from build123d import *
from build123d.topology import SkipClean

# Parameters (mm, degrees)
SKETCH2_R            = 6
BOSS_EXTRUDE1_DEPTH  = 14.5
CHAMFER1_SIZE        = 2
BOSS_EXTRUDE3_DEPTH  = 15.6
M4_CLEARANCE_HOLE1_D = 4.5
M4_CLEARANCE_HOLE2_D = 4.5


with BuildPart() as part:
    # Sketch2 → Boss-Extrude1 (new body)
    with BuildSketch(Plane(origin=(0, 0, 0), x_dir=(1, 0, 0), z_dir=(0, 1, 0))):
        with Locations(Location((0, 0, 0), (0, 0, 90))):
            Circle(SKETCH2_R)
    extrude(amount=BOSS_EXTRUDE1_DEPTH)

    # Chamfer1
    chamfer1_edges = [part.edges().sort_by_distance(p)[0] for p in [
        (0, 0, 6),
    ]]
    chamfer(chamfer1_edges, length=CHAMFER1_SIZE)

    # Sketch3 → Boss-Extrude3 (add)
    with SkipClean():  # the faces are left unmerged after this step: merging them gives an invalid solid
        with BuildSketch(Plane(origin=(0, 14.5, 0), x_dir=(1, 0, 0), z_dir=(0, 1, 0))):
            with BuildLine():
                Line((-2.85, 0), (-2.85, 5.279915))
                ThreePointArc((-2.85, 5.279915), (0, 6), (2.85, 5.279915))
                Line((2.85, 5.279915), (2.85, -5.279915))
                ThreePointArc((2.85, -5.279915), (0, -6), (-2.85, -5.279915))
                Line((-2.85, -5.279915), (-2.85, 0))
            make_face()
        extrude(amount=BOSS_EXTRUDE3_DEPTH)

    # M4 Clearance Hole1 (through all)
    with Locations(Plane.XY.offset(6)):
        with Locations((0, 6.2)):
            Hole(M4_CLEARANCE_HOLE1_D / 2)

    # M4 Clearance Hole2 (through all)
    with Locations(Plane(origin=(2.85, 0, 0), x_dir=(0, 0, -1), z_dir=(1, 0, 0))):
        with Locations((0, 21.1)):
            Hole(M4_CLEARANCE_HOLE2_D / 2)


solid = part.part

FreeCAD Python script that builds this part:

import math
import FreeCAD as App
import Part
import Sketcher
from FreeCAD import Vector


def edges_at(feature, points):
    """Names of the edges that pass closest to the given points."""
    edges = feature.Shape.Edges
    near = lambda p: min(range(len(edges)), key=lambda i: edges[i].distToShape(Part.Vertex(*p))[0])
    return sorted({f"Edge{near(p) + 1}" for p in points})

doc = App.newDocument("Part")
body = doc.addObject("PartDesign::Body", "Body")

# Sketch on XZ plane
sketch1 = body.newObject("Sketcher::SketchObject", "Sketch")
sketch1.AttachmentSupport = (doc.getObject("XZ_Plane"), [""])
sketch1.MapMode = "FlatFace"
sketch1.addGeometry(Part.Circle(Vector(0, 0, 0), Vector(0, 0, 1), 6), False)
sketch1.addConstraint([
    Sketcher.Constraint("Coincident", 0, 3, -1, 1),
    Sketcher.Constraint("Diameter", 0, 12.0),
])
pad1 = body.newObject("PartDesign::Pad", "Pad")
pad1.Profile = sketch1
pad1.Length = 14.5
pad1.Reversed = True
doc.recompute()

chamfer = body.newObject("PartDesign::Chamfer", "Chamfer")
chamfer.Base = (pad1, edges_at(pad1, [(0, 0, 6)]))
chamfer.Size = 2

# Sketch on XZ plane
sketch2 = body.newObject("Sketcher::SketchObject", "Sketch001")
sketch2.AttachmentSupport = (doc.getObject("XZ_Plane"), [""])
sketch2.MapMode = "FlatFace"
sketch2.AttachmentOffset = App.Placement(Vector(0, 0, -14.5), App.Rotation())
sketch2.addGeometry([
    Part.LineSegment(Vector(-2.85, -5.279915, 0), Vector(-2.85, 5.279915, 0)),
    Part.ArcOfCircle(Part.Circle(Vector(0, -0.000002, 0), Vector(0, 0, 1), 6.000002), math.radians(61.640659), math.radians(118.359341)),
    Part.LineSegment(Vector(2.85, 5.279915, 0), Vector(2.85, -5.279915, 0)),
    Part.ArcOfCircle(Part.Circle(Vector(0, 0.000002, 0), Vector(0, 0, 1), 6.000002), math.radians(-118.359341), math.radians(-61.640659)),
], False)
sketch2.addConstraint([
    Sketcher.Constraint("Coincident", 0, 2, 1, 2),
    Sketcher.Constraint("Coincident", 1, 1, 2, 1),
    Sketcher.Constraint("Coincident", 2, 2, 3, 2),
    Sketcher.Constraint("Coincident", 3, 1, 0, 1),
    Sketcher.Constraint("Vertical", 0),
    Sketcher.Constraint("Vertical", 2),
    Sketcher.Constraint("Coincident", 1, 3, -1, 1),
    Sketcher.Constraint("Coincident", 3, 3, -1, 1),
    Sketcher.Constraint("Equal", 1, 3),
    Sketcher.Constraint("Horizontal", 0, 2, 1, 1),
    Sketcher.Constraint("Radius", 1, 6.000002),
    Sketcher.Constraint("DistanceX", 0, 2, 1, 1, 5.7),
])
pad2 = body.newObject("PartDesign::Pad", "Pad001")
pad2.Profile = sketch2
pad2.Length = 15.6
pad2.Reversed = True

# Sketch on XY plane
sketch3 = body.newObject("Sketcher::SketchObject", "Sketch002")
sketch3.AttachmentSupport = (doc.getObject("XY_Plane"), [""])
sketch3.MapMode = "FlatFace"
sketch3.AttachmentOffset = App.Placement(Vector(0, 0, 6), App.Rotation())
sketch3.addGeometry(Part.Circle(Vector(0, 6.2, 0), Vector(0, 0, 1), 2.25), False)
sketch3.addConstraint([
    Sketcher.Constraint("PointOnObject", 0, 3, -2),
    Sketcher.Constraint("Diameter", 0, 4.5),
    Sketcher.Constraint("DistanceY", -1, 1, 0, 3, 6.2),
])
doc.recompute()
hole = body.newObject("PartDesign::Hole", "Hole")
hole.Profile = sketch3
hole.ThreadType = "None"
hole.Diameter = 4.5
hole.DepthType = "ThroughAll"

# Sketch on YZ plane
sketch4 = body.newObject("Sketcher::SketchObject", "Sketch003")
sketch4.AttachmentSupport = (doc.getObject("YZ_Plane"), [""])
sketch4.MapMode = "FlatFace"
sketch4.AttachmentOffset = App.Placement(Vector(0, 0, 2.85), App.Rotation())
sketch4.addGeometry(Part.Circle(Vector(21.1, 0, 0), Vector(0, 0, 1), 2.25), False)
sketch4.addConstraint([
    Sketcher.Constraint("PointOnObject", 0, 3, -1),
    Sketcher.Constraint("Diameter", 0, 4.5),
    Sketcher.Constraint("DistanceX", -1, 1, 0, 3, 21.1),
])
doc.recompute()
hole2 = body.newObject("PartDesign::Hole", "Hole001")
hole2.Profile = sketch4
hole2.ThreadType = "None"
hole2.Diameter = 4.5
hole2.DepthType = "ThroughAll"

doc.recompute()
